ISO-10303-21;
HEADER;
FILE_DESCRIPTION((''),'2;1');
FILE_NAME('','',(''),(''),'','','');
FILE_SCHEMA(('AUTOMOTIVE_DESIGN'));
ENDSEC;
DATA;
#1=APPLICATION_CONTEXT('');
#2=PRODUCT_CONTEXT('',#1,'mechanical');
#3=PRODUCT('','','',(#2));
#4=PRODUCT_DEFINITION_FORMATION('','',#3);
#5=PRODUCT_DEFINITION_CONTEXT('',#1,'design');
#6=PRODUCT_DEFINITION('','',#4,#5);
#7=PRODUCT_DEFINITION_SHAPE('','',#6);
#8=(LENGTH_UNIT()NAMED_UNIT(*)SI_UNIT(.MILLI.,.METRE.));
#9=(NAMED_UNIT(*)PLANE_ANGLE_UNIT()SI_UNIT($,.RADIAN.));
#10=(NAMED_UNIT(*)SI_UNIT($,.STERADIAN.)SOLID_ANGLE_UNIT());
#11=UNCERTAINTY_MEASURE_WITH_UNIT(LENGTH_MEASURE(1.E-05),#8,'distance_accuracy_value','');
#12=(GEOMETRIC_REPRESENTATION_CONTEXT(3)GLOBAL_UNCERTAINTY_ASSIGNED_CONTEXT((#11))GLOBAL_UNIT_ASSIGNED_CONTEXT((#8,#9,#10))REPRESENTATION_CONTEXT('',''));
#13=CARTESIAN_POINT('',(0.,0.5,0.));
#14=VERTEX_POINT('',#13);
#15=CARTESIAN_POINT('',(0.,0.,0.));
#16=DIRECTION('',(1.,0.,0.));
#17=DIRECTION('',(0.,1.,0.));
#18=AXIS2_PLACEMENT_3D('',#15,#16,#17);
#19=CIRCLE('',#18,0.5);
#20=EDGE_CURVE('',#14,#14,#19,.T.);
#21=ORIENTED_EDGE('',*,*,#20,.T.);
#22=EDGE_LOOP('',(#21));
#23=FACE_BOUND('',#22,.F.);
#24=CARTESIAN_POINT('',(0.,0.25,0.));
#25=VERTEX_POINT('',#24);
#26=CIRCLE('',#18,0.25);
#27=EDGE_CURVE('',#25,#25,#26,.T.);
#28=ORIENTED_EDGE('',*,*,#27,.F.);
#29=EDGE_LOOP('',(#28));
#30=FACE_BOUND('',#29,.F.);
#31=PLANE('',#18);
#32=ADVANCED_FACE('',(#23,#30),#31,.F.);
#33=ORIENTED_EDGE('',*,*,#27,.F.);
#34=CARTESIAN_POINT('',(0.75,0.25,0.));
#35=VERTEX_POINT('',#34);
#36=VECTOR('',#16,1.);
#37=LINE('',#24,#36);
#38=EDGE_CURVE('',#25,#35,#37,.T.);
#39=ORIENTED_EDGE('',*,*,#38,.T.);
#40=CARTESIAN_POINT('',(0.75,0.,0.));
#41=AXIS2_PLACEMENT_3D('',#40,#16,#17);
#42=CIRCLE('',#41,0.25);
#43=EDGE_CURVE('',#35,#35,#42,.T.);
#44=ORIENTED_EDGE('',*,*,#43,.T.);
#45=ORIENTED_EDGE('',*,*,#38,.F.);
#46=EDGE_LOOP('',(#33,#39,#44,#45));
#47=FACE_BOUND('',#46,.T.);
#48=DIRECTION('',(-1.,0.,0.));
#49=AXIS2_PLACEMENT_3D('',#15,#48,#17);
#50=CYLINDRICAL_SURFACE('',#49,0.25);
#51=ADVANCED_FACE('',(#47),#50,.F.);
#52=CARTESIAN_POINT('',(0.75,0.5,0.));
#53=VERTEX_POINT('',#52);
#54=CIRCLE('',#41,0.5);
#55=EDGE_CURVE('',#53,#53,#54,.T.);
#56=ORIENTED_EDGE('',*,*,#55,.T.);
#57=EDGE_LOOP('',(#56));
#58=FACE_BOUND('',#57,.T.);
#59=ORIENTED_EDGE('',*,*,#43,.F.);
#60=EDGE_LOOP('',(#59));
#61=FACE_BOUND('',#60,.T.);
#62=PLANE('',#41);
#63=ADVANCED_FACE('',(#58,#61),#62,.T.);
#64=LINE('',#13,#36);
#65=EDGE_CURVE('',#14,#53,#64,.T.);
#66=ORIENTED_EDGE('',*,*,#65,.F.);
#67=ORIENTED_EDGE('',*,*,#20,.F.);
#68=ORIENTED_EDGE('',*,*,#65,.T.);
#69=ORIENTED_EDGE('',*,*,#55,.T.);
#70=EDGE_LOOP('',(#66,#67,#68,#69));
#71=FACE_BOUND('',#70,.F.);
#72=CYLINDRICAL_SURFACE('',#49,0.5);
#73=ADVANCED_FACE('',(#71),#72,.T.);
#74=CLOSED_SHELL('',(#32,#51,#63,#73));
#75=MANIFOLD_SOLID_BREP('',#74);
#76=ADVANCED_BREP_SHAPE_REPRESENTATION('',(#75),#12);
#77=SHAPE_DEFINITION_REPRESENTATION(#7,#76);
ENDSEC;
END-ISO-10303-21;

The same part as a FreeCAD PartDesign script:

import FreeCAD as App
import Part
import Sketcher

doc = App.newDocument("Part")
body = doc.addObject("PartDesign::Body", "Body")

# Sketch on YZ plane
sketch1 = body.newObject("Sketcher::SketchObject", "Sketch")
sketch1.AttachmentSupport = (doc.getObject("YZ_Plane"), [""])
sketch1.MapMode = "FlatFace"
sketch1.addGeometry([
    Part.Circle(App.Vector(0, 0, 0), App.Vector(0, 0, 1), 0.5),
    Part.Circle(App.Vector(0, 0, 0), App.Vector(0, 0, 1), 0.25),
], False)
sketch1.addConstraint([
    Sketcher.Constraint("Coincident", 0, 3, -1, 1),
    Sketcher.Constraint("Coincident", 1, 3, -1, 1),
    Sketcher.Constraint("Diameter", 0, 1.0),
    Sketcher.Constraint("Diameter", 1, 0.5),
])
pad1 = body.newObject("PartDesign::Pad", "Pad")
pad1.Profile = sketch1
pad1.Length = 0.75

doc.recompute()
